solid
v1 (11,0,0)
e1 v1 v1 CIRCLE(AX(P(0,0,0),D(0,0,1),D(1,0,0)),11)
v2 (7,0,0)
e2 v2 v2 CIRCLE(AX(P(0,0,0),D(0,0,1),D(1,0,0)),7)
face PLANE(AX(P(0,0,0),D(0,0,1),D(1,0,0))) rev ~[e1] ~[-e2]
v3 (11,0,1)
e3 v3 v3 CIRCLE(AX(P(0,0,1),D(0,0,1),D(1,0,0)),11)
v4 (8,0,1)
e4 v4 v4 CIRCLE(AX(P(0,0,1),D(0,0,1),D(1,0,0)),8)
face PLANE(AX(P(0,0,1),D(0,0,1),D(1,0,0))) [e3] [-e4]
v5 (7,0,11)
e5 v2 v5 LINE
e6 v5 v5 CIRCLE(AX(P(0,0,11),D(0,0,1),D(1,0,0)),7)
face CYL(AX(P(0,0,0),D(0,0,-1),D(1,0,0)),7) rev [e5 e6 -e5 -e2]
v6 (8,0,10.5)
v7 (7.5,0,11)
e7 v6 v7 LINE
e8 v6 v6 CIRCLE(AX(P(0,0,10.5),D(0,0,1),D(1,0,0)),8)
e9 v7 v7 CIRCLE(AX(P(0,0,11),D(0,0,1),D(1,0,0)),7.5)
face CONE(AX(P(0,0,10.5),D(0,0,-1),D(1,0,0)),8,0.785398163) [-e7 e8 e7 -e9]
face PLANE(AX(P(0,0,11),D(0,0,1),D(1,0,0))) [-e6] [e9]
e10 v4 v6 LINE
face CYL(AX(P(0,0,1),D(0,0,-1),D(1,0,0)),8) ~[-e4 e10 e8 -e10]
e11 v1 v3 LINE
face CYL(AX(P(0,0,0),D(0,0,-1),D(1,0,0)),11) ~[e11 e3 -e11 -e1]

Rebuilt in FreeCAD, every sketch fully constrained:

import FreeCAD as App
import Part
import Sketcher
from FreeCAD import Vector
Q = App.Units.Quantity


def edges_at(feature, points):
    """Names of the edges that pass closest to the given points."""
    edges = feature.Shape.Edges
    near = lambda p: min(range(len(edges)), key=lambda i: edges[i].distToShape(Part.Vertex(*p))[0])
    return sorted({f"Edge{near(p) + 1}" for p in points})

doc = App.newDocument("Part")
body = doc.addObject("PartDesign::Body", "Body")

sketch1 = body.newObject("Sketcher::SketchObject", "Sketch")
sketch1.AttachmentSupport = (doc.getObject("XY_Plane"), [""])
sketch1.MapMode = "FlatFace"
sketch1.addGeometry([
    Part.Circle(Vector(0, 0, 0), Vector(0, 0, 1), 11),
    Part.Circle(Vector(0, 0, 0), Vector(0, 0, 1), 7),
], False)
sketch1.addConstraint([
    Sketcher.Constraint("Coincident", 0, 3, -1, 1),
    Sketcher.Constraint("Coincident", 1, 3, -1, 1),
    Sketcher.Constraint("Diameter", 0, Q("22 mm")),
    Sketcher.Constraint("Diameter", 1, Q("14 mm")),
])
pad1 = body.newObject("PartDesign::Pad", "Pad")
pad1.Profile = sketch1
pad1.Length = 1

sketch2 = body.newObject("Sketcher::SketchObject", "Sketch001")
sketch2.AttachmentSupport = (doc.getObject("XY_Plane"), [""])
sketch2.MapMode = "FlatFace"
sketch2.AttachmentOffset = App.Placement(Vector(0, 0, 1), App.Rotation())
sketch2.addGeometry([
    Part.Circle(Vector(0, 0, 0), Vector(0, 0, 1), 8),
    Part.Circle(Vector(0, 0, 0), Vector(0, 0, 1), 7),
], False)
sketch2.addConstraint([
    Sketcher.Constraint("Coincident", 0, 3, -1, 1),
    Sketcher.Constraint("Coincident", 1, 3, -1, 1),
    Sketcher.Constraint("Diameter", 0, Q("16 mm")),
    Sketcher.Constraint("Diameter", 1, Q("14 mm")),
])
pad2 = body.newObject("PartDesign::Pad", "Pad001")
pad2.Profile = sketch2
pad2.Length = 10
doc.recompute()

chamfer = body.newObject("PartDesign::Chamfer", "Chamfer")
chamfer.Base = (pad2, edges_at(pad2, [(-8, 0, 11)]))
chamfer.Size = 0.5

doc.recompute()
